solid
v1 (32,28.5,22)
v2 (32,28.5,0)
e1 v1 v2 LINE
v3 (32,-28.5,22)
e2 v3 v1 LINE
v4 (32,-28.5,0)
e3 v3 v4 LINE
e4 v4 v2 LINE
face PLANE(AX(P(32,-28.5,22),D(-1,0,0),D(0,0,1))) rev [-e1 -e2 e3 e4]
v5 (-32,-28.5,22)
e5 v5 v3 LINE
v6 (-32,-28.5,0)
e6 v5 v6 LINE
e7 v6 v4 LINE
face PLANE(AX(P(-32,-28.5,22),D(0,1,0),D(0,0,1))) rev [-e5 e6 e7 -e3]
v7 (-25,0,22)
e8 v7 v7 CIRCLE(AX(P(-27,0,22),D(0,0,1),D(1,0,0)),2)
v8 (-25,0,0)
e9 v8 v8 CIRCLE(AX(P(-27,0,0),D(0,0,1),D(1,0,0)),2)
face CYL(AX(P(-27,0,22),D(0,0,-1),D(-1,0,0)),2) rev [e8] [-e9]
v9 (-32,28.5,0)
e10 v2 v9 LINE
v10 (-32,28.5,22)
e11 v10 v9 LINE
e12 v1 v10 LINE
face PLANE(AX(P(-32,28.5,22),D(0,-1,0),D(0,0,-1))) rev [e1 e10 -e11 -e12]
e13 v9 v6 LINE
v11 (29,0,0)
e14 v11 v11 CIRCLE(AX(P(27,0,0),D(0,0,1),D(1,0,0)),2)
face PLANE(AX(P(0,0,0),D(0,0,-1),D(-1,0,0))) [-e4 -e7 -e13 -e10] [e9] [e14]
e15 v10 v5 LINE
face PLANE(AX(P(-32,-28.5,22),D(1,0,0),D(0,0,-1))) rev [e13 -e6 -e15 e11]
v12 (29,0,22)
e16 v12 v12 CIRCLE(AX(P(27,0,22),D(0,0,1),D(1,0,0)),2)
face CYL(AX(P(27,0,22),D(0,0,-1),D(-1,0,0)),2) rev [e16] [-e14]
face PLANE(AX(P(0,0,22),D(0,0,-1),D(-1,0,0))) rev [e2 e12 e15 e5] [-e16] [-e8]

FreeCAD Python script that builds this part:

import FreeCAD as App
import Part
import Sketcher
from FreeCAD import Vector


def add_polygon(sketch, points):
    """Adds a closed chain of lines whose ends are joined by coincident constraints."""
    first, n = sketch.GeometryCount, len(points)
    for a, b in zip(points, points[1:] + points[:1]):
        sketch.addGeometry(Part.LineSegment(App.Vector(*a, 0), App.Vector(*b, 0)), False)
    for i in range(n):
        sketch.addConstraint(Sketcher.Constraint("Coincident", first + i, 2, first + (i + 1) % n, 1))

doc = App.newDocument("Part")
body = doc.addObject("PartDesign::Body", "Body")

sketch1 = body.newObject("Sketcher::SketchObject", "Sketch")
sketch1.AttachmentSupport = (doc.getObject("XY_Plane"), [""])
sketch1.MapMode = "FlatFace"
add_polygon(sketch1, [(-32, 28.5), (-32, -28.5), (32, -28.5), (32, 28.5)])
sketch1.addGeometry(Part.Circle(Vector(-27, 0, 0), Vector(0, 0, 1), 2), False)
sketch1.addGeometry(Part.Circle(Vector(27, 0, 0), Vector(0, 0, 1), 2), False)
sketch1.addConstraint([
    Sketcher.Constraint("Vertical", 0),
    Sketcher.Constraint("Horizontal", 1),
    Sketcher.Constraint("Vertical", 2),
    Sketcher.Constraint("Horizontal", 3),
    Sketcher.Constraint("Equal", 4, 5),
    Sketcher.Constraint("Symmetric", 4, 3, 5, 3, -1, 1),
    Sketcher.Constraint("Symmetric", 0, 2, 2, 2, -1, 1),
    Sketcher.Constraint("PointOnObject", 4, 3, -1),
    Sketcher.Constraint("Diameter", 4, 4.0),
    Sketcher.Constraint("DistanceX", 1, 1, 1, 2, 64.0),
    Sketcher.Constraint("DistanceY", 0, 2, 0, 1, 57.0),
    Sketcher.Constraint("DistanceX", 4, 3, -1, 1, 27.0),
])
pad1 = body.newObject("PartDesign::Pad", "Pad")
pad1.Profile = sketch1
pad1.Length = 22

doc.recompute()
